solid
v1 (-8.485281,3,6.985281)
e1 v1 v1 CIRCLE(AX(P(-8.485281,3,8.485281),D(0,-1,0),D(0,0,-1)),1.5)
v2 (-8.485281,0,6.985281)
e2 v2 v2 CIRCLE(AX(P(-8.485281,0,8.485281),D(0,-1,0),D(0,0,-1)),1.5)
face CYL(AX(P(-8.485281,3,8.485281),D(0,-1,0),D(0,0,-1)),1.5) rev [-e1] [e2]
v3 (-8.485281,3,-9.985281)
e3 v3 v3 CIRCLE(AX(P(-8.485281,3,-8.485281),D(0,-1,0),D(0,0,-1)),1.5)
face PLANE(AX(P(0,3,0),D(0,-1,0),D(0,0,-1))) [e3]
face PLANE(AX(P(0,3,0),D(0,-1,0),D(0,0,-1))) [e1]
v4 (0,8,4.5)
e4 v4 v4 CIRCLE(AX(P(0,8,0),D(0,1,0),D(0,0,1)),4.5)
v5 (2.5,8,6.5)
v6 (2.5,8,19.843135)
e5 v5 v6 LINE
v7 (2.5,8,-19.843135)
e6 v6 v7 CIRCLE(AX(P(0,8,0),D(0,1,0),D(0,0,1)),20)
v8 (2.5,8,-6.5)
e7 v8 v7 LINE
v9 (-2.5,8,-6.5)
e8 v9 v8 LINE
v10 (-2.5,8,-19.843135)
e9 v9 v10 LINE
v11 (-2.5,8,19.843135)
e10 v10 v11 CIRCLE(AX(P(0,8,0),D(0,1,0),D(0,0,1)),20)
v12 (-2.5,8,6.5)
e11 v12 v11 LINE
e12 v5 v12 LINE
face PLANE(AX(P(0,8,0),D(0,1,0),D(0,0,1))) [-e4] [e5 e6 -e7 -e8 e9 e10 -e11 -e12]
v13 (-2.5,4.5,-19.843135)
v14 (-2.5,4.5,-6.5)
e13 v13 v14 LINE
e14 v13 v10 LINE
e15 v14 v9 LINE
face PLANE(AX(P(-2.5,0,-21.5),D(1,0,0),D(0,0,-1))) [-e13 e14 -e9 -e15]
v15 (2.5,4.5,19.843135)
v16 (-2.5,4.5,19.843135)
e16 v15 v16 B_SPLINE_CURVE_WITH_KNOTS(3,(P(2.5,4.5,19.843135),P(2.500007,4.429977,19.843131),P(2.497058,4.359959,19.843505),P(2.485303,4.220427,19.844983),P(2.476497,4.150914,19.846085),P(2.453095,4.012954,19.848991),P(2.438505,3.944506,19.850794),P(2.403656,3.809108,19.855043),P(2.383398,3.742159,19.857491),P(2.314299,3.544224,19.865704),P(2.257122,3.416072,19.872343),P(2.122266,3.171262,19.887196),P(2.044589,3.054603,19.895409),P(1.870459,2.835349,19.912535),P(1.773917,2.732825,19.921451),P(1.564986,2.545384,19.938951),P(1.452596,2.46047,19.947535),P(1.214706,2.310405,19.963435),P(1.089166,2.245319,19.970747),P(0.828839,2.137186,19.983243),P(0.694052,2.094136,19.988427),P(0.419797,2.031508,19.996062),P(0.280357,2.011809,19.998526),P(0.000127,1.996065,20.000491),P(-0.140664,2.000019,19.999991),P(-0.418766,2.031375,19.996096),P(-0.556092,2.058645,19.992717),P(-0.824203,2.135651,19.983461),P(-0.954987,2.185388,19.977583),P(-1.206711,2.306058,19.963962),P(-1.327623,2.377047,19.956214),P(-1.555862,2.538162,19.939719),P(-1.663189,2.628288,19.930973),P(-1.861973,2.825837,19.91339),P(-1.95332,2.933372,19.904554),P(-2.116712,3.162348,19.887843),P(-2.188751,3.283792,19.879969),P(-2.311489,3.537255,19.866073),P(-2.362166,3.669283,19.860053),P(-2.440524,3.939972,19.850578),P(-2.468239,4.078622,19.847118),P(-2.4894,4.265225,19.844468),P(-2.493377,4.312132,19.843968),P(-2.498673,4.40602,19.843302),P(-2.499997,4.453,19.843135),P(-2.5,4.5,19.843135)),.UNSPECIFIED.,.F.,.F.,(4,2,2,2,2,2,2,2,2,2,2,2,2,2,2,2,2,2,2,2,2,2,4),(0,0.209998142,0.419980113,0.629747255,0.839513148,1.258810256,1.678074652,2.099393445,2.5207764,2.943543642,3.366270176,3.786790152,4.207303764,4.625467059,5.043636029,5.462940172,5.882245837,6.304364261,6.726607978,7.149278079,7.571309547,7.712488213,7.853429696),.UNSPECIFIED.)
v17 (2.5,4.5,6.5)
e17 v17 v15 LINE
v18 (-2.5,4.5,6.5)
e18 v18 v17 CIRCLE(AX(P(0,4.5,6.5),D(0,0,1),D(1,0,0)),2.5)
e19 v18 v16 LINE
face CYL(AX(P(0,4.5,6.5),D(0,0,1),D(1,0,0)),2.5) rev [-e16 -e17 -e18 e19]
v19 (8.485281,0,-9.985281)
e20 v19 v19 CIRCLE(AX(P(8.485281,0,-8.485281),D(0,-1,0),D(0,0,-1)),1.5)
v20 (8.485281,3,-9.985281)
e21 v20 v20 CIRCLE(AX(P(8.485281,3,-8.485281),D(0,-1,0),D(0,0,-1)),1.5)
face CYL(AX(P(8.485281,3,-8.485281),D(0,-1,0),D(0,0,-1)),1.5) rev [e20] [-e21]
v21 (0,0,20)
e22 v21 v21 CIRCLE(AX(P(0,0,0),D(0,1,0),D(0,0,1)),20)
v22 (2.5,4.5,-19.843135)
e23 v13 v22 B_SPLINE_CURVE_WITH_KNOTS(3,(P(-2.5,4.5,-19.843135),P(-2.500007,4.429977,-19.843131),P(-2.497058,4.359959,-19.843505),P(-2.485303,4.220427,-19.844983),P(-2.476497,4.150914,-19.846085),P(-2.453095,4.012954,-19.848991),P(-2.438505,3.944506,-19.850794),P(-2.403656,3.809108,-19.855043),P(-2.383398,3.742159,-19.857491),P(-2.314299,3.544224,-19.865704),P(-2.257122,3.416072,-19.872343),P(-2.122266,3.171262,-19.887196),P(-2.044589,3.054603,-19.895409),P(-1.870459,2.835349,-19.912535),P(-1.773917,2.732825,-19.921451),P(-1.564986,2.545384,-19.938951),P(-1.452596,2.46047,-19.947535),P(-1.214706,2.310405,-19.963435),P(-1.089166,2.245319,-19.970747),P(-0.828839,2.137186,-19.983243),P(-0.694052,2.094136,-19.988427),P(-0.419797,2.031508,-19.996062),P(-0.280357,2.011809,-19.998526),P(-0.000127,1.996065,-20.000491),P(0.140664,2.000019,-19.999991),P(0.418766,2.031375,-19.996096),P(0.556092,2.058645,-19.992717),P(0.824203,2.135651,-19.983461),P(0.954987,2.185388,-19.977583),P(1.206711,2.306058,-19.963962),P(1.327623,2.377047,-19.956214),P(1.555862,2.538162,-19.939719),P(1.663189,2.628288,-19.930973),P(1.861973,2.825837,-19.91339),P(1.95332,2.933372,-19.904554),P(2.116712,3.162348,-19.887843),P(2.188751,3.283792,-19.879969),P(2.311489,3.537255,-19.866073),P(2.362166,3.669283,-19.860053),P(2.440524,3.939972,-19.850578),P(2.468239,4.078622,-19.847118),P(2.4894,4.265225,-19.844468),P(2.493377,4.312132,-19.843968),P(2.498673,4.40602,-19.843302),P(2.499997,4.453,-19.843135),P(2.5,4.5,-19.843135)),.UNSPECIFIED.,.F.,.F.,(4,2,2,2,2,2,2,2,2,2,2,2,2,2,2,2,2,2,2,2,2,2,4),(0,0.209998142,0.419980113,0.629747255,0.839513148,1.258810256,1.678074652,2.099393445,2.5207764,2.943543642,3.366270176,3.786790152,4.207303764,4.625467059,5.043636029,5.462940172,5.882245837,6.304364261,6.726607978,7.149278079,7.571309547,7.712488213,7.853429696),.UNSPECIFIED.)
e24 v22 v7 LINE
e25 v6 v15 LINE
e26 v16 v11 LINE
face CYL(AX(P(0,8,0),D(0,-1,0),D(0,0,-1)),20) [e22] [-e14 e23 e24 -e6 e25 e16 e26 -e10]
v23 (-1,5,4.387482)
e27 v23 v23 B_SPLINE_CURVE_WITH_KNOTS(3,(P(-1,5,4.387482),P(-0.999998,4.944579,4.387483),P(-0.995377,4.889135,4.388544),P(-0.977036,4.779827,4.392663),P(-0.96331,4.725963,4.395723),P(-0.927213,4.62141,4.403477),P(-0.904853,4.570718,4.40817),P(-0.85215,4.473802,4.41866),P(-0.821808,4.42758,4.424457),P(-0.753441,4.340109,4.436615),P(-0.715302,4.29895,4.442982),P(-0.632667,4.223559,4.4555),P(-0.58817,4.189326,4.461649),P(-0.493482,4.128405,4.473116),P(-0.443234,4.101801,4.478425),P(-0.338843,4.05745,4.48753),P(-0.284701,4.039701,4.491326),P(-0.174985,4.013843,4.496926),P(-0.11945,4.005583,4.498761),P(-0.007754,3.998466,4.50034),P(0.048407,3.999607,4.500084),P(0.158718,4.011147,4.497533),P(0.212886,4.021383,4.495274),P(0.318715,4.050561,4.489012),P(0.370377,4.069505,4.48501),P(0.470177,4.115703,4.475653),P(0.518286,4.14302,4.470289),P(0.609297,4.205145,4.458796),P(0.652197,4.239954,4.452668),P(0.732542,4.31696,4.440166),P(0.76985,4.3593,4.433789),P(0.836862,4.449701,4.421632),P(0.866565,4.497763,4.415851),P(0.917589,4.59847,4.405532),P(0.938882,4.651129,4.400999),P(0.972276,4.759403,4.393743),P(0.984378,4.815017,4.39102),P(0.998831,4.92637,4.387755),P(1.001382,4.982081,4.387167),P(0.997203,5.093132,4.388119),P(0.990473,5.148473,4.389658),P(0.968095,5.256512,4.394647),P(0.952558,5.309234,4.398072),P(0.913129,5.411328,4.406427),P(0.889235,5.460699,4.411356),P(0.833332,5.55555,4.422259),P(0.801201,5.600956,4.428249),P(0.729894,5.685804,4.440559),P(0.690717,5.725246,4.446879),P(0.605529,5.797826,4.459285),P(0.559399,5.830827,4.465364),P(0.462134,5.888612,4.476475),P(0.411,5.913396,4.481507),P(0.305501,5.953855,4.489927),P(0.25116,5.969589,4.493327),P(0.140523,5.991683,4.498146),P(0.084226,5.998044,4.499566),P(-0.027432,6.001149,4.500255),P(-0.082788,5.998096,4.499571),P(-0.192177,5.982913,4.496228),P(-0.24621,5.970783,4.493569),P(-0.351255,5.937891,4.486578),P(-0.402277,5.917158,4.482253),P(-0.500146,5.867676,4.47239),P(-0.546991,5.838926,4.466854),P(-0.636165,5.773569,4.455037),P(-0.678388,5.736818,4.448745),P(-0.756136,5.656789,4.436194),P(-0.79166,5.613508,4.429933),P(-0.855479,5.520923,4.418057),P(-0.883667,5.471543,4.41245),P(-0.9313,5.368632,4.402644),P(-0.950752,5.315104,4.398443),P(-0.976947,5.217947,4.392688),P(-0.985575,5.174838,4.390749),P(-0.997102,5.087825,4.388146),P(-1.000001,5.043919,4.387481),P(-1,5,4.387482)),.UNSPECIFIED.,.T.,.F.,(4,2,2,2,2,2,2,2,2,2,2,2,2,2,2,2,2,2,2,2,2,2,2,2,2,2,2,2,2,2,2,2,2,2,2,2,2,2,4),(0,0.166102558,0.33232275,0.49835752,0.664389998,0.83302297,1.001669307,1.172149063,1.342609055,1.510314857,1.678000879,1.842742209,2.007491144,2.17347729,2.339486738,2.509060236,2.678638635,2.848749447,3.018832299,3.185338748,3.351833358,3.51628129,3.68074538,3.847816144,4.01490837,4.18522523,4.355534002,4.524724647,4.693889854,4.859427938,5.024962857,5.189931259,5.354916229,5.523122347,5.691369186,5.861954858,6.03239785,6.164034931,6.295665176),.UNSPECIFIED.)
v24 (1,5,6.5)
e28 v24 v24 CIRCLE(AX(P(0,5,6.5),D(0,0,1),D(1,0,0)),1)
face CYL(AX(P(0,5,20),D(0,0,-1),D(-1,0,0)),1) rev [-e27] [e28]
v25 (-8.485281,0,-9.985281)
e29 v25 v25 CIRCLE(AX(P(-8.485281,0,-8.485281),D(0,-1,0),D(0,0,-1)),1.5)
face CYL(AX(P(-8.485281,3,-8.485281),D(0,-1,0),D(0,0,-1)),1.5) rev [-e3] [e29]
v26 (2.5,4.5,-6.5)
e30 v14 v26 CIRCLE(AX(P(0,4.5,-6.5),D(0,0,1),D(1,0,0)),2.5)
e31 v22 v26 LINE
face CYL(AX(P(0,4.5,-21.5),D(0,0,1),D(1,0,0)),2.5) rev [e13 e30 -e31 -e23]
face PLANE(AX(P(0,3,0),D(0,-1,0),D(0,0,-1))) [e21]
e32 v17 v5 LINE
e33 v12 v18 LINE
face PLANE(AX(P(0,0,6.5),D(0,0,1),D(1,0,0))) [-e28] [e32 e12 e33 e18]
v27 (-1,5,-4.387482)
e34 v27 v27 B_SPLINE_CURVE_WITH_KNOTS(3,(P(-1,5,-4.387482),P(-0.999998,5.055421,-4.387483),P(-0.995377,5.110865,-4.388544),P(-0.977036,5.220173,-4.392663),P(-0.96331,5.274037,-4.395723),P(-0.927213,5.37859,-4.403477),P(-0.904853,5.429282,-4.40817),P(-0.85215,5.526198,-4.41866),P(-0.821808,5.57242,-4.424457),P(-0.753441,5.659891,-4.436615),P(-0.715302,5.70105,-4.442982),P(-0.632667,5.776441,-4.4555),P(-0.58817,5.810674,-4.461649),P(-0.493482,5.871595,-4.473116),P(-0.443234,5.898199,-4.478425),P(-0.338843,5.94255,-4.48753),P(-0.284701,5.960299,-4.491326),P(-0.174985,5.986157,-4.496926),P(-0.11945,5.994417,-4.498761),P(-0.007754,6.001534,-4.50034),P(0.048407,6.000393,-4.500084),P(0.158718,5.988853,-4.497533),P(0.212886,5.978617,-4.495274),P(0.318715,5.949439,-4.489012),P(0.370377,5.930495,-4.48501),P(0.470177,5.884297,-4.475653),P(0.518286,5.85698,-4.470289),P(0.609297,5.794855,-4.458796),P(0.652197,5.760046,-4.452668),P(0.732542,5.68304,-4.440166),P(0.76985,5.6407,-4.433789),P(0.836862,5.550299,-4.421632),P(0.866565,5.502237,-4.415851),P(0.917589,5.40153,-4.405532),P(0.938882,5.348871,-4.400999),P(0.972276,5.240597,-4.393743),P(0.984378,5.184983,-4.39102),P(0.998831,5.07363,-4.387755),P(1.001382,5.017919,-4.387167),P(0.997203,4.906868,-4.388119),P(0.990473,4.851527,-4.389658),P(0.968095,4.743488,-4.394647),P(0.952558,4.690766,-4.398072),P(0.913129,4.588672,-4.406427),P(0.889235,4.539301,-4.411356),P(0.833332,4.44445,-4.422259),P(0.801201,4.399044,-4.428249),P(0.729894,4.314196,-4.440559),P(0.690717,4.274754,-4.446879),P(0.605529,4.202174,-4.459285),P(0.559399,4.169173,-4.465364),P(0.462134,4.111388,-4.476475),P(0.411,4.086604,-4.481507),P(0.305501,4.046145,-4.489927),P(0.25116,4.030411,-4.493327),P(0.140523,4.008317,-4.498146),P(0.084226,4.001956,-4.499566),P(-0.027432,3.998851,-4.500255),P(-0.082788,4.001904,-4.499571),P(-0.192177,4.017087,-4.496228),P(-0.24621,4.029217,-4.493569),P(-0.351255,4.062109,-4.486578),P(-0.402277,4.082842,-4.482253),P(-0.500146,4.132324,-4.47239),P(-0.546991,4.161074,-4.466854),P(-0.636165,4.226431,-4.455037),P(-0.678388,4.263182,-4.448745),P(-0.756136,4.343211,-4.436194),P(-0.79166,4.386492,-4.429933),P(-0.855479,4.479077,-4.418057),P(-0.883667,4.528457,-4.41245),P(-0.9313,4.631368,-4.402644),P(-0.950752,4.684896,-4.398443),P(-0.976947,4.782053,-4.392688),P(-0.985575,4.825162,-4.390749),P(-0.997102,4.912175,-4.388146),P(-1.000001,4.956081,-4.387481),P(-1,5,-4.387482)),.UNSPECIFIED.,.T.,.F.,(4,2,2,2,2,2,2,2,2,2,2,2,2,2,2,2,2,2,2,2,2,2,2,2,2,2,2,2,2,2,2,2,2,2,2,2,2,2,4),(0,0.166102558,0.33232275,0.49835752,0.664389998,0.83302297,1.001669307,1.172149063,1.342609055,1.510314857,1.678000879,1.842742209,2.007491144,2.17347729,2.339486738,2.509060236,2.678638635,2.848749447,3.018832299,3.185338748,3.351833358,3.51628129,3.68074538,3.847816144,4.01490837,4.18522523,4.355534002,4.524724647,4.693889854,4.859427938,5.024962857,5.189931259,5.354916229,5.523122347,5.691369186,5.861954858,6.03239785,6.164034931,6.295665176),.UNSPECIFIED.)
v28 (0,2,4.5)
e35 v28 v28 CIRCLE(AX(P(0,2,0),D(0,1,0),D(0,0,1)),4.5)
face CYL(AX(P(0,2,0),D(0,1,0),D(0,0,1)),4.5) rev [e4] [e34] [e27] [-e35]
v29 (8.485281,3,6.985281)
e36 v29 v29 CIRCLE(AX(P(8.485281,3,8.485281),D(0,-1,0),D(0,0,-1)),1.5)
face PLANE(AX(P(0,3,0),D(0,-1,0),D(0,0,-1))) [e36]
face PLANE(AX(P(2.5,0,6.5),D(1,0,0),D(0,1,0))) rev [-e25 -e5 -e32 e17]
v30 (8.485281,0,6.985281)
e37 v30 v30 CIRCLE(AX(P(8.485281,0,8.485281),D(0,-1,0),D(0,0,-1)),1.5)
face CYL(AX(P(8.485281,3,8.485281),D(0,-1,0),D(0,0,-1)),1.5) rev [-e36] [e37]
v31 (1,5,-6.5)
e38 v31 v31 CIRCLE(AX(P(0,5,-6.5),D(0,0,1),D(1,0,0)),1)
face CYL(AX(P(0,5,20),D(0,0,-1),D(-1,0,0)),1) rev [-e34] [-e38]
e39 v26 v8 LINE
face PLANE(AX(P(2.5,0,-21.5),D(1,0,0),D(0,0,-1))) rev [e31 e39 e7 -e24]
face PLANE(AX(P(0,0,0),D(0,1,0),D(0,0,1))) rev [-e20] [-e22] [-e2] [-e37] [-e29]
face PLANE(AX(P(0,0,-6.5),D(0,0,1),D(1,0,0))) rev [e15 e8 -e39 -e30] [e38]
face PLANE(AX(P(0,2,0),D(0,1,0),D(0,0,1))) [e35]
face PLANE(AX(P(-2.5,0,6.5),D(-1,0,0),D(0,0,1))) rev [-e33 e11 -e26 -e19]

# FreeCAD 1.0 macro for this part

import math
import FreeCAD as App
import Part
import Sketcher

V = App.Vector

doc = App.newDocument("Part")
params = doc.addObject("Spreadsheet::Sheet", "Params")
for row, (alias, value) in enumerate([
    ("sketch1_diameter", "40 mm"),
    ("pad1_length", "8 mm"),
    ("sketch2_diameter", "2 mm"),
    ("sketch3_radius", "2.5 mm"),
    ("sketch3_height", "3.5 mm"),
    ("pocket2_length", "13.5 mm"),
    ("sketch4_radius", "2.5 mm"),
    ("sketch4_height", "3.5 mm"),
    ("pocket3_length", "15 mm"),
    ("sketch5_diameter", "9 mm"),
    ("pocket4_length", "6 mm"),
    ("sketch6_diameter", "3 mm"),
    ("pocket5_length", "3 mm"),
], start=1):
    params.set(f"A{row}", alias)
    params.set(f"B{row}", "=" + value)
    params.setAlias(f"B{row}", alias)

body = doc.addObject("PartDesign::Body", "Body")

sketch1 = doc.addObject("Sketcher::SketchObject", "Sketch")
body.addObject(sketch1)
sketch1.AttachmentSupport = (doc.XZ_Plane, [""])
sketch1.MapMode = "FlatFace"
sketch1.addGeometry(Part.Circle(V(0, 0, 0), V(0, 0, 1), 20), False)
sketch1.addConstraint([
    Sketcher.Constraint("Coincident", 0, 3, -1, 1),
    Sketcher.Constraint("Diameter", 0, 40.0),
])
sketch1.setExpression("Constraints[1]", "Params.sketch1_diameter")
pad1 = doc.addObject("PartDesign::Pad", "Pad")
body.addObject(pad1)
pad1.Profile = sketch1
pad1.setExpression("Length", "Params.pad1_length")
pad1.Reversed = True

sketch2 = doc.addObject("Sketcher::SketchObject", "Sketch001")
body.addObject(sketch2)
sketch2.AttachmentSupport = (doc.XY_Plane, [""])
sketch2.MapMode = "FlatFace"
sketch2.AttachmentOffset = App.Placement(V(0, 0, 4.5), App.Rotation())
sketch2.addGeometry(Part.Circle(V(0, 5, 0), V(0, 0, 1), 1), False)
sketch2.addConstraint([
    Sketcher.Constraint("PointOnObject", 0, 3, -2),
    Sketcher.Constraint("Diameter", 0, 2.0),
    Sketcher.Constraint("DistanceY", -1, 1, 0, 3, 5.0),
])
sketch2.setExpression("Constraints[1]", "Params.sketch2_diameter")
pocket1 = doc.addObject("PartDesign::Pocket", "Pocket")
body.addObject(pocket1)
pocket1.Profile = sketch2
pocket1.Type = "ThroughAll"
pocket1.Midplane = True

sketch3 = doc.addObject("Sketcher::SketchObject", "Sketch002")
body.addObject(sketch3)
sketch3.AttachmentSupport = (doc.XY_Plane, [""])
sketch3.MapMode = "FlatFace"
sketch3.AttachmentOffset = App.Placement(V(0, 0, 20), App.Rotation())
sketch3.addGeometry([
    Part.LineSegment(V(2.5, 4.5, 0), V(2.5, 8, 0)),
    Part.LineSegment(V(2.5, 8, 0), V(-2.5, 8, 0)),
    Part.LineSegment(V(-2.5, 8, 0), V(-2.5, 4.5, 0)),
    Part.ArcOfCircle(Part.Circle(V(0, 4.5, 0), V(0, 0, 1), 2.5), math.radians(180), math.radians(360)),
], False)
sketch3.addConstraint([
    Sketcher.Constraint("Coincident", 0, 2, 1, 1),
    Sketcher.Constraint("Coincident", 1, 2, 2, 1),
    Sketcher.Constraint("Tangent", 2, 2, 3, 1),
    Sketcher.Constraint("Tangent", 3, 2, 0, 1),
    Sketcher.Constraint("Vertical", 0),
    Sketcher.Constraint("Horizontal", 1),
    Sketcher.Constraint("Vertical", 2),
    Sketcher.Constraint("PointOnObject", 3, 3, -2),
    Sketcher.Constraint("Radius", 3, 2.5),
    Sketcher.Constraint("DistanceY", 0, 1, 0, 2, 3.5),
    Sketcher.Constraint("DistanceY", -1, 1, 0, 2, 8.0),
])
sketch3.setExpression("Constraints[8]", "Params.sketch3_radius")
sketch3.setExpression("Constraints[9]", "Params.sketch3_height")
pocket2 = doc.addObject("PartDesign::Pocket", "Pocket001")
body.addObject(pocket2)
pocket2.Profile = sketch3
pocket2.setExpression("Length", "Params.pocket2_length")

sketch4 = doc.addObject("Sketcher::SketchObject", "Sketch003")
body.addObject(sketch4)
sketch4.AttachmentSupport = (doc.XY_Plane, [""])
sketch4.MapMode = "FlatFace"
sketch4.AttachmentOffset = App.Placement(V(0, 0, -6.5), App.Rotation())
sketch4.addGeometry([
    Part.ArcOfCircle(Part.Circle(V(0, 4.5, 0), V(0, 0, 1), 2.5), math.radians(-90), math.radians(0)),
    Part.LineSegment(V(2.5, 4.5, 0), V(2.5, 8, 0)),
    Part.LineSegment(V(2.5, 8, 0), V(-2.5, 8, 0)),
    Part.LineSegment(V(-2.5, 8, 0), V(-2.5, 4.5, 0)),
    Part.ArcOfCircle(Part.Circle(V(0, 4.5, 0), V(0, 0, 1), 2.5), math.radians(180), math.radians(270)),
], False)
sketch4.addConstraint([
    Sketcher.Constraint("Tangent", 0, 2, 1, 1),
    Sketcher.Constraint("Coincident", 1, 2, 2, 1),
    Sketcher.Constraint("Coincident", 2, 2, 3, 1),
    Sketcher.Constraint("Tangent", 3, 2, 4, 1),
    Sketcher.Constraint("Tangent", 4, 2, 0, 1),
    Sketcher.Constraint("Vertical", 1),
    Sketcher.Constraint("Horizontal", 2),
    Sketcher.Constraint("Vertical", 3),
    Sketcher.Constraint("Equal", 0, 4),
    Sketcher.Constraint("PointOnObject", 0, 3, -2),
    Sketcher.Constraint("PointOnObject", 4, 2, -2),
    Sketcher.Constraint("Radius", 0, 2.5),
    Sketcher.Constraint("DistanceY", 1, 1, 1, 2, 3.5),
    Sketcher.Constraint("DistanceY", -1, 1, 1, 2, 8.0),
])
sketch4.setExpression("Constraints[11]", "Params.sketch4_radius")
sketch4.setExpression("Constraints[12]", "Params.sketch4_height")
pocket3 = doc.addObject("PartDesign::Pocket", "Pocket002")
body.addObject(pocket3)
pocket3.Profile = sketch4
pocket3.setExpression("Length", "Params.pocket3_length")

sketch5 = doc.addObject("Sketcher::SketchObject", "Sketch004")
body.addObject(sketch5)
sketch5.AttachmentSupport = (doc.XZ_Plane, [""])
sketch5.MapMode = "FlatFace"
sketch5.AttachmentOffset = App.Placement(V(0, 0, -8), App.Rotation())
sketch5.addGeometry(Part.Circle(V(0, 0, 0), V(0, 0, 1), 4.5), False)
sketch5.addConstraint([
    Sketcher.Constraint("Coincident", 0, 3, -1, 1),
    Sketcher.Constraint("Diameter", 0, 9.0),
])
sketch5.setExpression("Constraints[1]", "Params.sketch5_diameter")
pocket4 = doc.addObject("PartDesign::Pocket", "Pocket003")
body.addObject(pocket4)
pocket4.Profile = sketch5
pocket4.setExpression("Length", "Params.pocket4_length")
pocket4.Reversed = True

sketch6 = doc.addObject("Sketcher::SketchObject", "Sketch005")
body.addObject(sketch6)
sketch6.AttachmentSupport = (doc.XZ_Plane, [""])
sketch6.MapMode = "FlatFace"
sketch6.addGeometry([
    Part.Circle(V(-8.5, 8.5, 0), V(0, 0, 1), 1.5),
    Part.Circle(V(8.5, 8.5, 0), V(0, 0, 1), 1.5),
    Part.Circle(V(8.5, -8.5, 0), V(0, 0, 1), 1.5),
    Part.Circle(V(-8.5, -8.5, 0), V(0, 0, 1), 1.5),
], False)
sketch6.addConstraint([
    Sketcher.Constraint("Equal", 0, 1),
    Sketcher.Constraint("Equal", 1, 2),
    Sketcher.Constraint("Equal", 2, 3),
    Sketcher.Constraint("Symmetric", 0, 3, 2, 3, -1, 1),
    Sketcher.Constraint("Symmetric", 1, 3, 3, 3, -1, 1),
    Sketcher.Constraint("Symmetric", 0, 3, 1, 3, -2),
    Sketcher.Constraint("Diameter", 0, 3.0),
    Sketcher.Constraint("DistanceX", 0, 3, -1, 1, 8.485281),
    Sketcher.Constraint("DistanceY", -1, 1, 0, 3, 8.485281),
])
sketch6.setExpression("Constraints[6]", "Params.sketch6_diameter")
pocket5 = doc.addObject("PartDesign::Pocket", "Pocket004")
body.addObject(pocket5)
pocket5.Profile = sketch6
pocket5.setExpression("Length", "Params.pocket5_length")

doc.recompute()
